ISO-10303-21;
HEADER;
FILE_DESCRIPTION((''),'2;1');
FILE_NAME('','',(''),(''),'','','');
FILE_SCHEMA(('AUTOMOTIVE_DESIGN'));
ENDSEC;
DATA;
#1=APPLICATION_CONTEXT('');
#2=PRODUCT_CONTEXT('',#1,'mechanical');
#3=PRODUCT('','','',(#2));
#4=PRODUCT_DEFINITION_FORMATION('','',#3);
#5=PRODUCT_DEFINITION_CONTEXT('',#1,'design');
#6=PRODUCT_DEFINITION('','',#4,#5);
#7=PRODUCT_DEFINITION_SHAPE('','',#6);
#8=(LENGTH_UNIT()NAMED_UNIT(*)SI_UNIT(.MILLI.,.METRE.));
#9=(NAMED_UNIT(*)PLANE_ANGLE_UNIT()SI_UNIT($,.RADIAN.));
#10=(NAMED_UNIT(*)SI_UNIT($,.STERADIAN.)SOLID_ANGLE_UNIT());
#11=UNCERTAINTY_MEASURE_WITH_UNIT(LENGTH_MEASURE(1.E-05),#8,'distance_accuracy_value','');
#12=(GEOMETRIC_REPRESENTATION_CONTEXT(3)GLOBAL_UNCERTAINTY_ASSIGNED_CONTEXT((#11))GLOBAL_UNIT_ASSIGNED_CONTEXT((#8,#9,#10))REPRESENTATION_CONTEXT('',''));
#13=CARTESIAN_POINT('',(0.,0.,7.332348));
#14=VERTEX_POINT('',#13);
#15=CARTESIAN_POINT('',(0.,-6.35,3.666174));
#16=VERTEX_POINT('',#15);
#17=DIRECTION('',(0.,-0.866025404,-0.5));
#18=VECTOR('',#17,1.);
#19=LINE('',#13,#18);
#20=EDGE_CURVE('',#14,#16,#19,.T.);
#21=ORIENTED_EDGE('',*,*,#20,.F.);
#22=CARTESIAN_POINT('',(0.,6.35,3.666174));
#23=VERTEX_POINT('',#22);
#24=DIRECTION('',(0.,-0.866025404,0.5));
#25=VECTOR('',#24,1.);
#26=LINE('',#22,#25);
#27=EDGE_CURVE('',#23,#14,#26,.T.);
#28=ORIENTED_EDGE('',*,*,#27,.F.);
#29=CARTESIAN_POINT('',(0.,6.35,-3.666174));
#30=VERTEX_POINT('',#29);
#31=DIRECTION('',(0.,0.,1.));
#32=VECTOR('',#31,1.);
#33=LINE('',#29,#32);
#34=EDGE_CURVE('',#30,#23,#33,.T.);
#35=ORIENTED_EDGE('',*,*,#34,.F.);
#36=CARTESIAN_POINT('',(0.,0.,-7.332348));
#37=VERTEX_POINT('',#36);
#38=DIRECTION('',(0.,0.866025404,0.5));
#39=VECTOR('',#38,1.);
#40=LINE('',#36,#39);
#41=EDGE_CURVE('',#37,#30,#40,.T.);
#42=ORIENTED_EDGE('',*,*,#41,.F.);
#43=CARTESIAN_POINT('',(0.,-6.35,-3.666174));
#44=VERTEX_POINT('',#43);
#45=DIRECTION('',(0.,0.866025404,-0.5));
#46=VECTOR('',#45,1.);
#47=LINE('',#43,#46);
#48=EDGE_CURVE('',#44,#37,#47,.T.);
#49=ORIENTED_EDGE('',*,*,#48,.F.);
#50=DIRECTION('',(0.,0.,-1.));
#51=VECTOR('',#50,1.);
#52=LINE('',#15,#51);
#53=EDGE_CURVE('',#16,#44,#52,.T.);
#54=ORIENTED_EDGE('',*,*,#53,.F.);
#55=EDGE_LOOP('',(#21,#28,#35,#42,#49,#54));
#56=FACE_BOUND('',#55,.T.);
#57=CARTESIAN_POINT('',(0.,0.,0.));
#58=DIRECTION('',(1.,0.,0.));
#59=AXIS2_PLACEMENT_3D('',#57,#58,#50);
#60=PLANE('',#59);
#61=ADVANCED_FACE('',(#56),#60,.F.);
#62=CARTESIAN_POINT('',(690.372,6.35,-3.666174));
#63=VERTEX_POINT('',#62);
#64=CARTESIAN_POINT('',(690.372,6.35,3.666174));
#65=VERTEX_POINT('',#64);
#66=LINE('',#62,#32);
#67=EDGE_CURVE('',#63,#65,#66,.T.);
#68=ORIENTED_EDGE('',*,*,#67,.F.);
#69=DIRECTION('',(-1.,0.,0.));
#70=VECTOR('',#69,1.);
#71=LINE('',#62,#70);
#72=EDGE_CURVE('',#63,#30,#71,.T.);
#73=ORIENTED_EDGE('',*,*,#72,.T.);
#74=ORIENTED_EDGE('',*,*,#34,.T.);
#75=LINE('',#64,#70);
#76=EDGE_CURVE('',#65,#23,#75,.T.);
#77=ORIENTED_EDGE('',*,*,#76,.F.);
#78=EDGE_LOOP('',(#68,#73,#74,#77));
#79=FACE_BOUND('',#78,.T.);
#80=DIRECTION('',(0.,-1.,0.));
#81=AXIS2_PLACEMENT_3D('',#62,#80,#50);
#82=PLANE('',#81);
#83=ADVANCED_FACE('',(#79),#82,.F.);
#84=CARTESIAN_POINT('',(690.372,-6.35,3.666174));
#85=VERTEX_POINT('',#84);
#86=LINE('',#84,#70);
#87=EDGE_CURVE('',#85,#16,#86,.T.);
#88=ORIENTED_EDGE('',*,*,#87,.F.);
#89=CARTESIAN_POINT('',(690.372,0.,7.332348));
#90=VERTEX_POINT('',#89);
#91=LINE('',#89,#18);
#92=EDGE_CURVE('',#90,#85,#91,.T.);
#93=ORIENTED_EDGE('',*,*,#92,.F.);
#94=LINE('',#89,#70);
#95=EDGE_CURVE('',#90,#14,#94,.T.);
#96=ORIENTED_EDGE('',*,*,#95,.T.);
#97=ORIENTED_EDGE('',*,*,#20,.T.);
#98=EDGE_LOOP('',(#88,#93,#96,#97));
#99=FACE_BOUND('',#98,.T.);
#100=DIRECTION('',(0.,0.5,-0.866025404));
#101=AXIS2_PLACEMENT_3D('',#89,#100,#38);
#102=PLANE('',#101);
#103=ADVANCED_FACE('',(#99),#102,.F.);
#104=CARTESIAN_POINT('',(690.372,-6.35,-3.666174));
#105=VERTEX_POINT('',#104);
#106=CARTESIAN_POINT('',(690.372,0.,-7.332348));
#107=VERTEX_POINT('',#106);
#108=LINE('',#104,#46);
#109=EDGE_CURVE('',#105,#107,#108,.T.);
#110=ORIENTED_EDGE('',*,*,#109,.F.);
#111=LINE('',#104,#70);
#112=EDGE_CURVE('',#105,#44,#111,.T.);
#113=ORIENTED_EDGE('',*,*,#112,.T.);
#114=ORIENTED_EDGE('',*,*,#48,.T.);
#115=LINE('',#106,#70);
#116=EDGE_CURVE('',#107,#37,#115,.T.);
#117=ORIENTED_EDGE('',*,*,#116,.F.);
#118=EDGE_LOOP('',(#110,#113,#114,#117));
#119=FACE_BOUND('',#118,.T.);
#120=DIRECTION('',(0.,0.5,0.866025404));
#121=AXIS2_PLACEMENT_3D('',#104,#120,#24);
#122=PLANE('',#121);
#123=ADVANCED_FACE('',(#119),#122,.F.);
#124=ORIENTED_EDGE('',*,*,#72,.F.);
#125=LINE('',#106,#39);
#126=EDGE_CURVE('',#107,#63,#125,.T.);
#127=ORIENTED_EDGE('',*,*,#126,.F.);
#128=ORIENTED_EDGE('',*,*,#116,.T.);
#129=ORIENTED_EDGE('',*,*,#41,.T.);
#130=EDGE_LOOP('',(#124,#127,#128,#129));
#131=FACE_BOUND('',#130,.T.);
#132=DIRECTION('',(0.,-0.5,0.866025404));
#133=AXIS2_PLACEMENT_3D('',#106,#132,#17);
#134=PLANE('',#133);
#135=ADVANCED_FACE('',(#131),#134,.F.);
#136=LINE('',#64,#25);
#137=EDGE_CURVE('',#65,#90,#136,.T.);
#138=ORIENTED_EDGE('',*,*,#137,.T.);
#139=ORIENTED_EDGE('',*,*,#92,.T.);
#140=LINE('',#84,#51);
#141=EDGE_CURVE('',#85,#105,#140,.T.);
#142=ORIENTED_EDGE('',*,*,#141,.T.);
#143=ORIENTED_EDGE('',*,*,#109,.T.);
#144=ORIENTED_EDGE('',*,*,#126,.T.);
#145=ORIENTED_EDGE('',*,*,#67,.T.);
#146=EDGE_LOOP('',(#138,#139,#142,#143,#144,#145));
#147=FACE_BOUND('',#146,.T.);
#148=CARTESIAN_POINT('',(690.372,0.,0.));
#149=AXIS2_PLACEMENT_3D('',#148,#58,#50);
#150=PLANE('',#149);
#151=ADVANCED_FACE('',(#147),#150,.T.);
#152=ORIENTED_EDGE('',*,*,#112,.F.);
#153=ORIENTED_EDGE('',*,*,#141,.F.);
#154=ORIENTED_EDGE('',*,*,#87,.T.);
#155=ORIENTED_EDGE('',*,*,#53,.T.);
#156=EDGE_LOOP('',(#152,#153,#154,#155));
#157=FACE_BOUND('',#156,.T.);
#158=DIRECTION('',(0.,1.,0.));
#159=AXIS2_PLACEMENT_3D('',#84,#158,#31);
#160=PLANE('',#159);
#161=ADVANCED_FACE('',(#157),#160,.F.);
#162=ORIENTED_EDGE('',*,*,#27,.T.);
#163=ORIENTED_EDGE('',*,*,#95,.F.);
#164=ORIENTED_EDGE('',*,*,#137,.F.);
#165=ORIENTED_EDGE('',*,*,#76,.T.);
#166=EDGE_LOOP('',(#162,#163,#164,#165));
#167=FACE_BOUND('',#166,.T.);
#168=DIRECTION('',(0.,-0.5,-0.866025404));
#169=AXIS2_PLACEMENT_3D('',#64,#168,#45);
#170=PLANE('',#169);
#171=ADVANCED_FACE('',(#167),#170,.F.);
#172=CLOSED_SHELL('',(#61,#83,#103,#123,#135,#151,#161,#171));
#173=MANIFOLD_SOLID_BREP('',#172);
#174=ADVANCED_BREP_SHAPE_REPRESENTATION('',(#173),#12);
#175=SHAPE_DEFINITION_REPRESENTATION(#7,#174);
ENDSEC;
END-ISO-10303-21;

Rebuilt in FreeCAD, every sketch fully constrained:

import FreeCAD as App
import Part
import Sketcher

V = App.Vector
Q = App.Units.Quantity


def add_polygon(sketch, points):
    """Adds a closed chain of lines whose ends are joined by coincident constraints."""
    first, n = sketch.GeometryCount, len(points)
    for a, b in zip(points, points[1:] + points[:1]):
        sketch.addGeometry(Part.LineSegment(App.Vector(*a, 0), App.Vector(*b, 0)), False)
    for i in range(n):
        sketch.addConstraint(Sketcher.Constraint("Coincident", first + i, 2, first + (i + 1) % n, 1))

doc = App.newDocument("Part")
params = doc.addObject("Spreadsheet::Sheet", "Params")
for row, (alias, value) in enumerate([
    ("pad1_length", "27.18 in"),
], start=1):
    params.set(f"A{row}", alias)
    params.set(f"B{row}", "=" + value)
    params.setAlias(f"B{row}", alias)

body = doc.addObject("PartDesign::Body", "Body")

sketch1 = doc.addObject("Sketcher::SketchObject", "Sketch")
body.addObject(sketch1)
sketch1.AttachmentSupport = (doc.YZ_Plane, [""])
sketch1.MapMode = "FlatFace"
add_polygon(sketch1, [(0, -7.332348), (6.35, -3.666174), (6.35, 3.666174), (0, 7.332348), (-6.35, 3.666174), (-6.35, -3.666174)])
sketch1.addConstraint([
    Sketcher.Constraint("Vertical", 1),
    Sketcher.Constraint("Vertical", 4),
    Sketcher.Constraint("Symmetric", 0, 2, 3, 2, -1, 1),
    Sketcher.Constraint("Symmetric", 2, 2, 5, 2, -1, 1),
    Sketcher.Constraint("PointOnObject", 2, 2, -2),
    Sketcher.Constraint("Parallel", 2, 5),
    Sketcher.Constraint("Horizontal", 1, 2, 3, 2),
    Sketcher.Constraint("Angle", 0, Q("30 deg")),
    Sketcher.Constraint("DistanceX", 3, 2, 1, 2, Q("0.5 in")),
    Sketcher.Constraint("DistanceY", 1, 1, 1, 2, 7.332348),
])
pad1 = doc.addObject("PartDesign::Pad", "Pad")
body.addObject(pad1)
pad1.Profile = sketch1
pad1.setExpression("Length", "Params.pad1_length")

doc.recompute()
